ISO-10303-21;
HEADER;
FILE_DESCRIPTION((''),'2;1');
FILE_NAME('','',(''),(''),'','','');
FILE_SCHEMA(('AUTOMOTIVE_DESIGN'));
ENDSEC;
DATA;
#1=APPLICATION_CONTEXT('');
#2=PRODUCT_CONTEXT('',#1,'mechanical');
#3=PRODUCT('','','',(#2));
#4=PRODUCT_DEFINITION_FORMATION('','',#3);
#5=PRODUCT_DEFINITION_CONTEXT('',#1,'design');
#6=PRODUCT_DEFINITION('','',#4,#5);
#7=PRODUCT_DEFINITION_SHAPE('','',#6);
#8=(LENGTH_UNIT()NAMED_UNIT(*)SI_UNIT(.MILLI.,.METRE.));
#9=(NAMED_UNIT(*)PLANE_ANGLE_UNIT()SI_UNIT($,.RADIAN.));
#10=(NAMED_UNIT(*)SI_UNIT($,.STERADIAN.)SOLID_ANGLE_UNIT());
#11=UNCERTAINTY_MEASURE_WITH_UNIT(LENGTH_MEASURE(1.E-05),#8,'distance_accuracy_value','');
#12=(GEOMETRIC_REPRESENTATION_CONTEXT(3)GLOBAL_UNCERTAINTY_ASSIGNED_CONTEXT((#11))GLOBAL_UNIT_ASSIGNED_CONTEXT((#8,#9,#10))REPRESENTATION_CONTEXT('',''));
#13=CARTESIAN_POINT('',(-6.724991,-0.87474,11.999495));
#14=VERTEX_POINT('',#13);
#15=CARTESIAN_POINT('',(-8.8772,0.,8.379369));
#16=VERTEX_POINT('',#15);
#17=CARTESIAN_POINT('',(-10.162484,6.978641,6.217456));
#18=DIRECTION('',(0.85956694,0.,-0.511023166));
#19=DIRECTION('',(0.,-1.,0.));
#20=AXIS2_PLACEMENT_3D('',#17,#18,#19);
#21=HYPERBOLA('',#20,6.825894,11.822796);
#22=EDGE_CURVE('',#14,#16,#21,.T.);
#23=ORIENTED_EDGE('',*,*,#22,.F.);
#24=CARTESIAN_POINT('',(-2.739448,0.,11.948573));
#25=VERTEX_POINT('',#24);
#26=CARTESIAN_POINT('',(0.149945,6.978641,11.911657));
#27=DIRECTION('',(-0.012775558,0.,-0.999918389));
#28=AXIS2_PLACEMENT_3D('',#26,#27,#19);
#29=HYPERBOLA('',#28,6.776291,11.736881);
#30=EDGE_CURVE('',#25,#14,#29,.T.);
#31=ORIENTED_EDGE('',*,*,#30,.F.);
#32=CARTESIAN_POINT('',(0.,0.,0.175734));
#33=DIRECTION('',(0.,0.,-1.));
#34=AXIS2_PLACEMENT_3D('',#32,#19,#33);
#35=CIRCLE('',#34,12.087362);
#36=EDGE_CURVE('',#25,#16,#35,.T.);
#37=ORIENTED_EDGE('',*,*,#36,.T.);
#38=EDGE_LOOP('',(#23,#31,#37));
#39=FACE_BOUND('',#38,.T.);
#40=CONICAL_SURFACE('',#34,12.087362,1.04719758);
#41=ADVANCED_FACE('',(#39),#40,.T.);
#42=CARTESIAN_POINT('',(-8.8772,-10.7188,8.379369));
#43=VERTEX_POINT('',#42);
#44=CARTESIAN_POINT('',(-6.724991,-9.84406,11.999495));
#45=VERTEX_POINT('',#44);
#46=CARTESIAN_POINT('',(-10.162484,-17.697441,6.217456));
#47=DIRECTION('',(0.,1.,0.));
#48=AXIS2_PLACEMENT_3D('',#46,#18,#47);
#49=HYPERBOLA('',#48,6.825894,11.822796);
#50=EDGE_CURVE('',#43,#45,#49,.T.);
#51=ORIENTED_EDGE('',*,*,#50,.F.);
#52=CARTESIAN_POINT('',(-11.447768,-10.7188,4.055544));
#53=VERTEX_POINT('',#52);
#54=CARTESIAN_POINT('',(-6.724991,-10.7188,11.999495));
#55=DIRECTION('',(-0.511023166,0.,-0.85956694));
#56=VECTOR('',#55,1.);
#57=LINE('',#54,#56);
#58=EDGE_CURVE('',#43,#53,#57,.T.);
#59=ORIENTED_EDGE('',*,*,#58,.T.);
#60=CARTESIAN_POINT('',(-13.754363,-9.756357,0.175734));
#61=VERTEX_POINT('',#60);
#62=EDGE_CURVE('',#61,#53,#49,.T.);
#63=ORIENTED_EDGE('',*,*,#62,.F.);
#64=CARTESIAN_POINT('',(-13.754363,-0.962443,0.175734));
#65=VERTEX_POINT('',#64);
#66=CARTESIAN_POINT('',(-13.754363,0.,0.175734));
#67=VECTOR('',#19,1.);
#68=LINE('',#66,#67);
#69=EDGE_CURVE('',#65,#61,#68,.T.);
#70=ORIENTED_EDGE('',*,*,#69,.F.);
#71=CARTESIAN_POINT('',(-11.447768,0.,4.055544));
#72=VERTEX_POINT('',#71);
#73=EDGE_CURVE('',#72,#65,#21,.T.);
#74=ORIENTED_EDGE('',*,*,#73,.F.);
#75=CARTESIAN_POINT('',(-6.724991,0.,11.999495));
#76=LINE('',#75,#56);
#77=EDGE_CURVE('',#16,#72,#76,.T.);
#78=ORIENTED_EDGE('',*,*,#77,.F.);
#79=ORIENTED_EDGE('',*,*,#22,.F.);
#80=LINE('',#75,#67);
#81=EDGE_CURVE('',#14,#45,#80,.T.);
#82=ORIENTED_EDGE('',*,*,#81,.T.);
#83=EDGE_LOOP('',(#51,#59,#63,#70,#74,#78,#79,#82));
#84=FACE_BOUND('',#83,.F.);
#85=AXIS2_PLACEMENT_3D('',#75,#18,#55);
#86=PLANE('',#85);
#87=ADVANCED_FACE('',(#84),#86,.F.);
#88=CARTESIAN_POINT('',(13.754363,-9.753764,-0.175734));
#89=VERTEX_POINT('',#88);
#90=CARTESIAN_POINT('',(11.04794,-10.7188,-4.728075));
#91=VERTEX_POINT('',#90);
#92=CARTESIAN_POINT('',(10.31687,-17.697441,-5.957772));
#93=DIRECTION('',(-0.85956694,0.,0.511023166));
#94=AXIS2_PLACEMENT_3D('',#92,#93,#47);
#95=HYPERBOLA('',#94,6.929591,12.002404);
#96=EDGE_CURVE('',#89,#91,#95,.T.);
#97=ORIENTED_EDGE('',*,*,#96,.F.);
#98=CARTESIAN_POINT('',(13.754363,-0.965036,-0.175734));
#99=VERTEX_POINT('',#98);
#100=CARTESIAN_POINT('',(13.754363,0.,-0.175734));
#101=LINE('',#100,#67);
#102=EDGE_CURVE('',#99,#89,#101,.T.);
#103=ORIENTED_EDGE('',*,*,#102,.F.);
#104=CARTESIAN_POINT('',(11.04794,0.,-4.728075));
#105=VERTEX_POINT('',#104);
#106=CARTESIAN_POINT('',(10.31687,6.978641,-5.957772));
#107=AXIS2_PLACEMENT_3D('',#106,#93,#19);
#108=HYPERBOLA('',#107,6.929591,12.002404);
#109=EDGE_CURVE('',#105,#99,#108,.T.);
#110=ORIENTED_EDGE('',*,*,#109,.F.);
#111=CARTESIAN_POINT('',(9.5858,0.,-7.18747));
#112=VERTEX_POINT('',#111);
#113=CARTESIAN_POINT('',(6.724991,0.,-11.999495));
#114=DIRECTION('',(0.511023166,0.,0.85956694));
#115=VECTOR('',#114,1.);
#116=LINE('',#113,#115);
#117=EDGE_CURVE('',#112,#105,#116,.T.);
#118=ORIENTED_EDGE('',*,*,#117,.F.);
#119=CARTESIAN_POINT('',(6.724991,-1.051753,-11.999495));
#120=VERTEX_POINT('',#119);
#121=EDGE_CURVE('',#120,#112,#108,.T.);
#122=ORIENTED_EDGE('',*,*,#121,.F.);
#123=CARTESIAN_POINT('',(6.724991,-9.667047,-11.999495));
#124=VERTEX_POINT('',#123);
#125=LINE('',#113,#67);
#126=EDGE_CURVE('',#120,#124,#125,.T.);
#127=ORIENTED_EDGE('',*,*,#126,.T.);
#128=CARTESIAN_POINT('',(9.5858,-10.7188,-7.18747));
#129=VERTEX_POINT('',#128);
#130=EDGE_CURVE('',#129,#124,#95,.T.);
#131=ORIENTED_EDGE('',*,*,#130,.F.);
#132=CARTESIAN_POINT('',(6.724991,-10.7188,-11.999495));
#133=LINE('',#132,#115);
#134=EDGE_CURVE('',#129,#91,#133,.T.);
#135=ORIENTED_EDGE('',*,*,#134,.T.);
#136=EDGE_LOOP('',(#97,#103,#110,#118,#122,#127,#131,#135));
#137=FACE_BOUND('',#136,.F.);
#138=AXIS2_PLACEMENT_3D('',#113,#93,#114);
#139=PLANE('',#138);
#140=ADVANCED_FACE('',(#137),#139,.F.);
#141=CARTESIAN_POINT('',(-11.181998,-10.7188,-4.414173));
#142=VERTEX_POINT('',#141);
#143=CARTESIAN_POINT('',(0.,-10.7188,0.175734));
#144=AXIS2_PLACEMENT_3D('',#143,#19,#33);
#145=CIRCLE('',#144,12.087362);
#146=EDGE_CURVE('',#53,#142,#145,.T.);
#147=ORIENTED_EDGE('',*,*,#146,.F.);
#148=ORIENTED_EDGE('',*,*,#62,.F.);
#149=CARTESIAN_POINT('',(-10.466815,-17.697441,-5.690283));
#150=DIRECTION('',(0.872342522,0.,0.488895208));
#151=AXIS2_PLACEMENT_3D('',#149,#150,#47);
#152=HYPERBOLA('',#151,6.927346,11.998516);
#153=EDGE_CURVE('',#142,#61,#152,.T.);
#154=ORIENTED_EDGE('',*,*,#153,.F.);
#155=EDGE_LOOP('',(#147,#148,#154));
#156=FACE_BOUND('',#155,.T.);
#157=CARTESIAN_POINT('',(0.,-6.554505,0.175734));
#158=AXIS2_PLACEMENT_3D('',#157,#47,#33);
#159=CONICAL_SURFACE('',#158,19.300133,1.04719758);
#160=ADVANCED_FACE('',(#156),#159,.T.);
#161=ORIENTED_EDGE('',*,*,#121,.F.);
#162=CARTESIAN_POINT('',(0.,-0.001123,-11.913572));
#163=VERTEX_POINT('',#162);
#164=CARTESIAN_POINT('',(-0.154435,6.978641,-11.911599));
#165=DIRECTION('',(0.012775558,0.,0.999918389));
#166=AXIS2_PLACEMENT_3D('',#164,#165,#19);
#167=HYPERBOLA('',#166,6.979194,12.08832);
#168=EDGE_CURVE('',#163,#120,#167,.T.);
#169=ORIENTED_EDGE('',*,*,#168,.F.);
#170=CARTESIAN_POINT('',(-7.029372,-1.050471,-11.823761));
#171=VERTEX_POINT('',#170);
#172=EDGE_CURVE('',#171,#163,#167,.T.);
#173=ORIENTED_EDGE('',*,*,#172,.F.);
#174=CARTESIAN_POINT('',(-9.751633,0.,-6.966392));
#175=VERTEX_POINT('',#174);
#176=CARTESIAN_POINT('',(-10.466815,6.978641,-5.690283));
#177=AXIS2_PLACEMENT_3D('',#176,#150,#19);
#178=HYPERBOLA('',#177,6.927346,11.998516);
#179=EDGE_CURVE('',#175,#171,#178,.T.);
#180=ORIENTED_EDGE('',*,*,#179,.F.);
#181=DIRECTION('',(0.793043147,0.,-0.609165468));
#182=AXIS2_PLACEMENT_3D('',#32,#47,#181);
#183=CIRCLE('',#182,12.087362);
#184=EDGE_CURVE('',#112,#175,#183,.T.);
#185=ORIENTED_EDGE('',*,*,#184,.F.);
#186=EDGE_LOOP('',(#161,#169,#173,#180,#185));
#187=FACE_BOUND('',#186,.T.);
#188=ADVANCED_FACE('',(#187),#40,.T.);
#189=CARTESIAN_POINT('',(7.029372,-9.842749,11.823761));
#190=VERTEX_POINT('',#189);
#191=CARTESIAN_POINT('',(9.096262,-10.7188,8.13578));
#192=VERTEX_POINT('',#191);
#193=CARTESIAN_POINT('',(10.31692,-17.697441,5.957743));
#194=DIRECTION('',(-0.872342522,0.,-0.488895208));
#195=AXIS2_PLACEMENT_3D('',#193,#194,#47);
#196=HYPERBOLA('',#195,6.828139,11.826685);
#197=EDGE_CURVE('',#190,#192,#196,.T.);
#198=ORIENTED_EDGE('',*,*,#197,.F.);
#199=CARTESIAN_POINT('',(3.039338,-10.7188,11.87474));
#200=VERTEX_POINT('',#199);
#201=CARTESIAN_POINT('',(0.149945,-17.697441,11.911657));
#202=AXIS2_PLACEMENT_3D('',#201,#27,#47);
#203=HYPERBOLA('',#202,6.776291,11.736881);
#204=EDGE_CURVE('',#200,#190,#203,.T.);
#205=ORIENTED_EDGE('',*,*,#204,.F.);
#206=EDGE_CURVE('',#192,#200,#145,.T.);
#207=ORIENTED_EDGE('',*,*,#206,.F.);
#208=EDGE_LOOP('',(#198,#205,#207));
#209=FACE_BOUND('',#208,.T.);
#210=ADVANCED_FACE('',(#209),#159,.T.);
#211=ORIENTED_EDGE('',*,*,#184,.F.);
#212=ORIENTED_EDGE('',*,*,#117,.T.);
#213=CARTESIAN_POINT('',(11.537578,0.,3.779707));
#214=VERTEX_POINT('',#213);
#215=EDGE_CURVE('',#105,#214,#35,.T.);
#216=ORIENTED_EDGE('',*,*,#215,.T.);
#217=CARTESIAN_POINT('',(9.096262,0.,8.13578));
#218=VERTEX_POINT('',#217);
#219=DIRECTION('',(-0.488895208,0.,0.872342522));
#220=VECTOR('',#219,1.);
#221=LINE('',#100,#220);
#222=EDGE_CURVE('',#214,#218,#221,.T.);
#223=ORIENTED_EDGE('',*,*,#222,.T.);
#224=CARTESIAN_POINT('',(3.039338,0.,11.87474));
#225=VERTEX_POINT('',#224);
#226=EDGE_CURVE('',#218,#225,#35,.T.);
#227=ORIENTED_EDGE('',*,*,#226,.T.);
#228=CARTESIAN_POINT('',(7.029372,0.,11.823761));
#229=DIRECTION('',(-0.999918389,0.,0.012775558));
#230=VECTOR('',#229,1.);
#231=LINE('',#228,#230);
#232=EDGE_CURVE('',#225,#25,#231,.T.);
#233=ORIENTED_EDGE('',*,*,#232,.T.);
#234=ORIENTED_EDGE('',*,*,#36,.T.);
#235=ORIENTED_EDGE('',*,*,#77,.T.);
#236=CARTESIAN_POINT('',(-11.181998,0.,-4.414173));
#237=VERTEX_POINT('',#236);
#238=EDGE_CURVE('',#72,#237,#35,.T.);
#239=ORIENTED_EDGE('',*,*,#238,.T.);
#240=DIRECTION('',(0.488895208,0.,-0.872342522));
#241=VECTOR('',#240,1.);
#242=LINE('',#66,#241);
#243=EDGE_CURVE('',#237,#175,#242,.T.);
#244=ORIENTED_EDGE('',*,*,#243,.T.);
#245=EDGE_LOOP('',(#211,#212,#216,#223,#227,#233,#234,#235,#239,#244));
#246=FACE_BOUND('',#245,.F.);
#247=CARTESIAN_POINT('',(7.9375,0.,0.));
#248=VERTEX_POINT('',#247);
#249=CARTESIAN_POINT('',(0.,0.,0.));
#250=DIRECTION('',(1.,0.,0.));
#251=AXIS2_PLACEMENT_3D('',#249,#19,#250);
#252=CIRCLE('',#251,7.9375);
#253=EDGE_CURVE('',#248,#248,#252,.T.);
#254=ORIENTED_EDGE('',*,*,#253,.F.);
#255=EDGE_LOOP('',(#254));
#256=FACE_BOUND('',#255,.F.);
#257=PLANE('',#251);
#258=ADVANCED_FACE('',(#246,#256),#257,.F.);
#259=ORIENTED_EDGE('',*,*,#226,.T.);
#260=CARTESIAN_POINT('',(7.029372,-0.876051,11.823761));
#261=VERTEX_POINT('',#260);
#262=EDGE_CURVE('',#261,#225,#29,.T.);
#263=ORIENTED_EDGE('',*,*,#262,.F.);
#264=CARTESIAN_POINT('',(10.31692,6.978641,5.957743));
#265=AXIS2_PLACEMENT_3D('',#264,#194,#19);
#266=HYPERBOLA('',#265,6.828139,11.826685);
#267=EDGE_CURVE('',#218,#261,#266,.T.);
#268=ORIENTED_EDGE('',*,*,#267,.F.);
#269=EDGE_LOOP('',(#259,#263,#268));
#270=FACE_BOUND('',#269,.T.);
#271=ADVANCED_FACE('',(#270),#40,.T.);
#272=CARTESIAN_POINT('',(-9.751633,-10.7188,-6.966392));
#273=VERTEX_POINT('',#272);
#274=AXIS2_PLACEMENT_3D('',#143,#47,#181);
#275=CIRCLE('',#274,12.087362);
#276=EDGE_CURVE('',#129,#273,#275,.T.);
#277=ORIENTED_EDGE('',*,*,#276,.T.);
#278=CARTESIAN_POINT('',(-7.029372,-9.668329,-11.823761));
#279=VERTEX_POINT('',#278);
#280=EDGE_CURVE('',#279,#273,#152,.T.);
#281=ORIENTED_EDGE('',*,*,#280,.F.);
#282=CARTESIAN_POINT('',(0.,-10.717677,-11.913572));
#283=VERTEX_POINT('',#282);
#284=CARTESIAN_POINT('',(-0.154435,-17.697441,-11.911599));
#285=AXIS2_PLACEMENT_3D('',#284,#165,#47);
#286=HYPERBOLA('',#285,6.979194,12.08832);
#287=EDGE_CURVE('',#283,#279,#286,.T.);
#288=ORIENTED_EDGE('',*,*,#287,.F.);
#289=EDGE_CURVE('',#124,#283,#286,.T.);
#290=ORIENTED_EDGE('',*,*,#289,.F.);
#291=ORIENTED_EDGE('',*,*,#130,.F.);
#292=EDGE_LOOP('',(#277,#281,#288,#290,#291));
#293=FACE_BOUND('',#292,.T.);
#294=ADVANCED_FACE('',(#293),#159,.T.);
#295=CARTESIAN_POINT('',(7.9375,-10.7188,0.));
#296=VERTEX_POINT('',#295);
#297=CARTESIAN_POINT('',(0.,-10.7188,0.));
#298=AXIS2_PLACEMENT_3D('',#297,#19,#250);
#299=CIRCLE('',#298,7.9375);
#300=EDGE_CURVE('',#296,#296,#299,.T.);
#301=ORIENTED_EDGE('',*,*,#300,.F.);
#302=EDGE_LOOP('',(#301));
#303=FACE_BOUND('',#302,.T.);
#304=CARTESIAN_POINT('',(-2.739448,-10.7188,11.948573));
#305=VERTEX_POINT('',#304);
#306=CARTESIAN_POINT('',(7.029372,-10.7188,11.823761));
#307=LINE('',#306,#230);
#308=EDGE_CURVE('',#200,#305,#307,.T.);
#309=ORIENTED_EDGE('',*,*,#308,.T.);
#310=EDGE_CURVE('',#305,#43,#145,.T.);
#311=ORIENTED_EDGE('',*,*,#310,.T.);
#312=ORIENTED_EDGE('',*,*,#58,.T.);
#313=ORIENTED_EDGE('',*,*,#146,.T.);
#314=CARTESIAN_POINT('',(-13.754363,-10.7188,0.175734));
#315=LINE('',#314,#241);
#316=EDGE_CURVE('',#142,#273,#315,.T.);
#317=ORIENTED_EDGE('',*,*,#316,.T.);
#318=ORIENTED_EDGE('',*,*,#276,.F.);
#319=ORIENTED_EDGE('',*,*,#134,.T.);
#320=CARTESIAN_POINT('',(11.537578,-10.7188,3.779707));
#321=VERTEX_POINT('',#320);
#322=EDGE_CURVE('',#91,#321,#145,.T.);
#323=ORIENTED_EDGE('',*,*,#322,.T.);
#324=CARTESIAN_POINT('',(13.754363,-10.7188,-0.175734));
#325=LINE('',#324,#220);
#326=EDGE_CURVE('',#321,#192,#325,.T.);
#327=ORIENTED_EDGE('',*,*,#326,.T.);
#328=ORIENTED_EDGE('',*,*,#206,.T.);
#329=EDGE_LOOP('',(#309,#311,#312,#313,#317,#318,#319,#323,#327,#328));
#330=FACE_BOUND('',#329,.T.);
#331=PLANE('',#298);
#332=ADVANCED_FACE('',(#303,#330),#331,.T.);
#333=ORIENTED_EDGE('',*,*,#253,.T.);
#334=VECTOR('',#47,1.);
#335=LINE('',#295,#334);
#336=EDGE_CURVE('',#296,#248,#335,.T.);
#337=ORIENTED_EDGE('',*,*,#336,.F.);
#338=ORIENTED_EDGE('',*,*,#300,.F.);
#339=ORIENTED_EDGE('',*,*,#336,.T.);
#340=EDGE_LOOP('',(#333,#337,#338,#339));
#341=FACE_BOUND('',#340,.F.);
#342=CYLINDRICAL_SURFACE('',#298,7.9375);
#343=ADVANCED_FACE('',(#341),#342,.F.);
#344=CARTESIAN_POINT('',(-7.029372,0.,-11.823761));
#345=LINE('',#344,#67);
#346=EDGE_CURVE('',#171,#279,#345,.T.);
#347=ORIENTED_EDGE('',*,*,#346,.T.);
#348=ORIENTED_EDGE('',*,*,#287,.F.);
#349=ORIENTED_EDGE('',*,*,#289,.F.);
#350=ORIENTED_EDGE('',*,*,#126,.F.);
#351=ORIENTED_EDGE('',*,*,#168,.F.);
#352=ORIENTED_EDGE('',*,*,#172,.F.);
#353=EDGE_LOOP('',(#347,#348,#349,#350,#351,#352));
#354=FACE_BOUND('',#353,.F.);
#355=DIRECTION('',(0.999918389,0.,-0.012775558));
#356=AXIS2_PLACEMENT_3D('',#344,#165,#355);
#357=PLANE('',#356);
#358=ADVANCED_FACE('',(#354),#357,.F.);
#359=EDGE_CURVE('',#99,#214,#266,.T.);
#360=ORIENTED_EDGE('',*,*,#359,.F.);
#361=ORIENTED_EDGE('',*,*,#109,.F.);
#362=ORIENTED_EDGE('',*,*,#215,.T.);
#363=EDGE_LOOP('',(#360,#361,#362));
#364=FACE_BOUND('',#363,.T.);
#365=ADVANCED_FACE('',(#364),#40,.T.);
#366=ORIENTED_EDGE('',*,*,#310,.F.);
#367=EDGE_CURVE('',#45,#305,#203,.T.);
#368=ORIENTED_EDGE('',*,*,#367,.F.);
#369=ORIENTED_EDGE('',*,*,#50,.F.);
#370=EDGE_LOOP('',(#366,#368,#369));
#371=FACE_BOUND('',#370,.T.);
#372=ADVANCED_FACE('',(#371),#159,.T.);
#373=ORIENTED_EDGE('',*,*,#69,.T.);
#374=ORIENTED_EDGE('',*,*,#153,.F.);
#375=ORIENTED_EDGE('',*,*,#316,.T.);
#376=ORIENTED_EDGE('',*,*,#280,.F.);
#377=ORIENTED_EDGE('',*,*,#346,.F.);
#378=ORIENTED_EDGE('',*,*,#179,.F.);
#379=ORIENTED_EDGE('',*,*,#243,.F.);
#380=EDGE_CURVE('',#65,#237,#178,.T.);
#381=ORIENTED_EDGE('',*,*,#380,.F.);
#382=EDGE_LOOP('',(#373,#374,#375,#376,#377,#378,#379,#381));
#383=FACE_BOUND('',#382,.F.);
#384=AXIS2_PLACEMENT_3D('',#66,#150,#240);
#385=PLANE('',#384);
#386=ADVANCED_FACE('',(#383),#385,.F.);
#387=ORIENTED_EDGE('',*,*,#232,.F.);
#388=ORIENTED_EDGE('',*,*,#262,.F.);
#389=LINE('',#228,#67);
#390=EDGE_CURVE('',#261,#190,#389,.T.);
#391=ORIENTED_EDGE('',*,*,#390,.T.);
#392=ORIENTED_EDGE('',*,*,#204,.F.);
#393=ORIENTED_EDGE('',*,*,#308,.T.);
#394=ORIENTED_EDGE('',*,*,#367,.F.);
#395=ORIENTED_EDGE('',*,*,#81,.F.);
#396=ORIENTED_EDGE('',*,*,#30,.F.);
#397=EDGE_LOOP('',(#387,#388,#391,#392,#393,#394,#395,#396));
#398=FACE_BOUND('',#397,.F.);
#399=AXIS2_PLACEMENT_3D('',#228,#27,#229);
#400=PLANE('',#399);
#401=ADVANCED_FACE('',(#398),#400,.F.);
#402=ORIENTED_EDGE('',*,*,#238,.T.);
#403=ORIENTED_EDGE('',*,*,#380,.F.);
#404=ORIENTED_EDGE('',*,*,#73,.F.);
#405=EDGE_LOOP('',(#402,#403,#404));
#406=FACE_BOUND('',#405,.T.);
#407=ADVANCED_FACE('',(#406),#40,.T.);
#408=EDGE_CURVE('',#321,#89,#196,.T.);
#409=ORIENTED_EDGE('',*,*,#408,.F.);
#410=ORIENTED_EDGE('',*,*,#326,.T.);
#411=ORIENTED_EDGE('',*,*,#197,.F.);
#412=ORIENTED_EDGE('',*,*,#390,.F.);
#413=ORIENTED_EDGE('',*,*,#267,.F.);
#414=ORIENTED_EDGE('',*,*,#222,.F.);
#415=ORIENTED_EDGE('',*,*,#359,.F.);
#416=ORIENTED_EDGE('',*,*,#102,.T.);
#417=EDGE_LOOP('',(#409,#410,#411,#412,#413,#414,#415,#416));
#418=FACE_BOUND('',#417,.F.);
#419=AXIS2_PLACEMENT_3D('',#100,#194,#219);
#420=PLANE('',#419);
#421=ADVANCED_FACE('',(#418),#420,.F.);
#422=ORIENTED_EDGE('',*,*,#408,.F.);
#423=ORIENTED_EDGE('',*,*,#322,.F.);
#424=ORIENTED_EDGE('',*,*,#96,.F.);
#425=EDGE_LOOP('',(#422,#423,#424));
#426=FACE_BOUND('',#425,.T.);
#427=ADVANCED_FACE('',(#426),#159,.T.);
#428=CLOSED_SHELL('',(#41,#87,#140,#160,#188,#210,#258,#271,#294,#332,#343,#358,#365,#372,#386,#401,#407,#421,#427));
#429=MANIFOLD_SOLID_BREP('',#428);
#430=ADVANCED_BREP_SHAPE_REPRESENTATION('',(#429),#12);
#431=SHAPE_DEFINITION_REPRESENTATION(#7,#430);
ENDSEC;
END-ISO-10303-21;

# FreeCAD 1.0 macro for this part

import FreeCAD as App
import Part
import Sketcher

V = App.Vector
Q = App.Units.Quantity

doc = App.newDocument("Part")
params = doc.addObject("Spreadsheet::Sheet", "Params")
for row, (alias, value) in enumerate([
    ("pad1_length", "0.422 in"),
    ("sketch2_diameter", "0.625 in"),
    ("sketch3_width", "0.422 in"),
    ("groove_angle", "360 deg"),
], start=1):
    params.set(f"A{row}", alias)
    params.set(f"B{row}", "=" + value)
    params.setAlias(f"B{row}", alias)

body = doc.addObject("PartDesign::Body", "Body")

# Sketch on XZ plane
sketch1 = body.newObject("Sketcher::SketchObject", "Sketch")
sketch1.AttachmentSupport = (doc.getObject("XZ_Plane"), [""])
sketch1.MapMode = "FlatFace"
sketch1.addGeometry(Part.LineSegment(V(-13.754363, 0.175734, 0), V(-7.029372, -11.823761, 0)), False)
sketch1.addGeometry(Part.LineSegment(V(-7.029372, -11.823761, 0), V(6.724991, -11.999495, 0)), False)
sketch1.addGeometry(Part.LineSegment(V(6.724991, -11.999495, 0), V(13.754363, -0.175734, 0)), False)
sketch1.addGeometry(Part.LineSegment(V(13.754363, -0.175734, 0), V(7.029372, 11.823761, 0)), False)
sketch1.addGeometry(Part.LineSegment(V(7.029372, 11.823761, 0), V(-6.724991, 11.999495, 0)), False)
sketch1.addGeometry(Part.LineSegment(V(-6.724991, 11.999495, 0), V(-13.754363, 0.175734, 0)), False)
sketch1.addConstraint(Sketcher.Constraint("Coincident", 0, 2, 1, 1))
sketch1.addConstraint(Sketcher.Constraint("Coincident", 1, 2, 2, 1))
sketch1.addConstraint(Sketcher.Constraint("Coincident", 2, 2, 3, 1))
sketch1.addConstraint(Sketcher.Constraint("Coincident", 3, 2, 4, 1))
sketch1.addConstraint(Sketcher.Constraint("Coincident", 4, 2, 5, 1))
sketch1.addConstraint(Sketcher.Constraint("Coincident", 5, 2, 0, 1))
sketch1.addConstraint(Sketcher.Constraint("Symmetric", 0, 2, 3, 2, -1, 1))
sketch1.addConstraint(Sketcher.Constraint("Symmetric", 1, 2, 4, 2, -1, 1))
sketch1.addConstraint(Sketcher.Constraint("Symmetric", 2, 2, 5, 2, -1, 1))
sketch1.addConstraint(Sketcher.Constraint("Equal", 0, 1))
sketch1.addConstraint(Sketcher.Constraint("Equal", 1, 2))
sketch1.addConstraint(Sketcher.Constraint("DistanceY", 0, 2, -1, 1, 11.823761))
sketch1.addConstraint(Sketcher.Constraint("DistanceX", -1, 1, 1, 2, 6.724991))
sketch1.addConstraint(Sketcher.Constraint("DistanceX", 1, 2, 2, 2, 7.029372))
sketch1.addConstraint(Sketcher.Constraint("DistanceY", 1, 2, 2, 2, 11.823761))
pad1 = body.newObject("PartDesign::Pad", "Pad")
pad1.Profile = sketch1
pad1.setExpression("Length", "Params.pad1_length")

# Sketch on XZ plane
sketch2 = body.newObject("Sketcher::SketchObject", "Sketch001")
sketch2.AttachmentSupport = (doc.getObject("XZ_Plane"), [""])
sketch2.MapMode = "FlatFace"
sketch2.AttachmentOffset = App.Placement(V(0, 0, 0.422 * 25.4), App.Rotation())
sketch2.addGeometry(Part.Circle(V(0, 0, 0), V(0, 0, 1), 7.9375), False)
sketch2.addConstraint(Sketcher.Constraint("Coincident", 0, 3, -1, 1))
sketch2.addConstraint(Sketcher.Constraint("Diameter", 0, Q("0.625 in")))
sketch2.setExpression("Constraints[1]", "Params.sketch2_diameter")
pocket1 = body.newObject("PartDesign::Pocket", "Pocket")
pocket1.Profile = sketch2
pocket1.Type = "ThroughAll"

# Sketch on YZ plane
sketch3 = body.newObject("Sketcher::SketchObject", "Sketch002")
sketch3.AttachmentSupport = (doc.getObject("YZ_Plane"), [""])
sketch3.MapMode = "FlatFace"
sketch3.addGeometry(Part.LineSegment(V(-6.554505, -19.124399, 0), V(-10.7188, -11.911628, 0)), False)
sketch3.addGeometry(Part.LineSegment(V(-10.7188, -11.911628, 0), V(-10.7188, -19.124399, 0)), False)
sketch3.addGeometry(Part.LineSegment(V(-10.7188, -19.124399, 0), V(-6.554505, -19.124399, 0)), False)
sketch3.addGeometry(Part.LineSegment(V(0, -11.911628, 0), V(-4.164295, -19.124399, 0)), False)
sketch3.addGeometry(Part.LineSegment(V(-4.164295, -19.124399, 0), V(0, -19.124399, 0)), False)
sketch3.addGeometry(Part.LineSegment(V(0, -19.124399, 0), V(0, -11.911628, 0)), False)
sketch3.addGeometry(Part.LineSegment(V(0, 0.175734, 0), V(-10.7188, 0.175734, 0)), True)  # axis
sketch3.addConstraint(Sketcher.Constraint("Coincident", 0, 2, 1, 1))
sketch3.addConstraint(Sketcher.Constraint("Coincident", 1, 2, 2, 1))
sketch3.addConstraint(Sketcher.Constraint("Coincident", 2, 2, 0, 1))
sketch3.addConstraint(Sketcher.Constraint("Coincident", 3, 2, 4, 1))
sketch3.addConstraint(Sketcher.Constraint("Coincident", 4, 2, 5, 1))
sketch3.addConstraint(Sketcher.Constraint("Coincident", 5, 2, 3, 1))
sketch3.addConstraint(Sketcher.Constraint("Vertical", 1))
sketch3.addConstraint(Sketcher.Constraint("Horizontal", 2))
sketch3.addConstraint(Sketcher.Constraint("Horizontal", 4))
sketch3.addConstraint(Sketcher.Constraint("Vertical", 5))
sketch3.addConstraint(Sketcher.Constraint("Horizontal", 6))
sketch3.addConstraint(Sketcher.Constraint("PointOnObject", 4, 2, -2))
sketch3.addConstraint(Sketcher.Constraint("PointOnObject", 6, 1, -2))
sketch3.addConstraint(Sketcher.Constraint("Horizontal", 2, 2, 3, 2))
sketch3.addConstraint(Sketcher.Constraint("Horizontal", 0, 2, 5, 2))
sketch3.addConstraint(Sketcher.Constraint("Vertical", 1, 2, 6, 2))
sketch3.addConstraint(Sketcher.Constraint("Equal", 2, 4))
sketch3.addConstraint(Sketcher.Constraint("Angle", 0, Q("119.999998 deg")))
sketch3.addConstraint(Sketcher.Constraint("DistanceX", 6, 2, 6, 1, Q("0.422 in")))
sketch3.addConstraint(Sketcher.Constraint("DistanceY", 1, 2, 1, 1, 7.212771))
sketch3.addConstraint(Sketcher.Constraint("DistanceY", 1, 2, -1, 1, 19.124399))
sketch3.addConstraint(Sketcher.Constraint("DistanceY", -1, 1, 6, 1, 0.175734))
sketch3.setExpression("Constraints[18]", "Params.sketch3_width")
groove = body.newObject("PartDesign::Groove", "Groove")
groove.Profile = sketch3
groove.ReferenceAxis = (sketch3, ["Axis0"])
groove.setExpression("Angle", "Params.groove_angle")

doc.recompute()
